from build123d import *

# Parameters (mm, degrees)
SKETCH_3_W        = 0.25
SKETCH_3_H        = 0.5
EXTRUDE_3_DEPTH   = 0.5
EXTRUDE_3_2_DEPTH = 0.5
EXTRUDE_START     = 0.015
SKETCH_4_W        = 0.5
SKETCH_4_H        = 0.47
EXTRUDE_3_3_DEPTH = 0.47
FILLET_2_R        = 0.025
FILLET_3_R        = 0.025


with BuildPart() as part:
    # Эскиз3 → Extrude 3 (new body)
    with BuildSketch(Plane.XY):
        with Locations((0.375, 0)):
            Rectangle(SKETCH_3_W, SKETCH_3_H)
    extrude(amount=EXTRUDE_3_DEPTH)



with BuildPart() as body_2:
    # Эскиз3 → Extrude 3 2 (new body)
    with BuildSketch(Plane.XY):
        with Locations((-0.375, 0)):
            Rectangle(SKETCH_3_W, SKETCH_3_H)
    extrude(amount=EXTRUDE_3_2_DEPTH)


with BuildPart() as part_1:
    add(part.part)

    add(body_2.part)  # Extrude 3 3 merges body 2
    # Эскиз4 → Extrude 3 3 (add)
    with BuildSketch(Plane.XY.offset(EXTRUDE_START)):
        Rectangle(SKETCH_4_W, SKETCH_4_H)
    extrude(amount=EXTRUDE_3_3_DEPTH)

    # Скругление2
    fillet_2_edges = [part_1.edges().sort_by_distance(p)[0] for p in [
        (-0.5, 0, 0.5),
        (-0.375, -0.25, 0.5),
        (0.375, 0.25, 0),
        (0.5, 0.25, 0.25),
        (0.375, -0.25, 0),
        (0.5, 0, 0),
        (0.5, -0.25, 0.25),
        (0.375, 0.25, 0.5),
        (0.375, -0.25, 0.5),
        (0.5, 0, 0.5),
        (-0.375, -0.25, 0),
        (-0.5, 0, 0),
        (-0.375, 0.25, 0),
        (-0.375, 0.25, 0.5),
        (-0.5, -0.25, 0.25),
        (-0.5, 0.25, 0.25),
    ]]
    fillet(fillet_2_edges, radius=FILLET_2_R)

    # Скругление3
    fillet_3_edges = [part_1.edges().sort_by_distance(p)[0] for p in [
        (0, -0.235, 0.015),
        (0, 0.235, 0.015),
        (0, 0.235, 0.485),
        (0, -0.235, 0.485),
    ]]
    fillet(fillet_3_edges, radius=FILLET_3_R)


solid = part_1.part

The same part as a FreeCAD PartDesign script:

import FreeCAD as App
import Part
import Sketcher
from FreeCAD import Vector


def edges_at(feature, points):
    """Names of the edges that pass closest to the given points."""
    edges = feature.Shape.Edges
    near = lambda p: min(range(len(edges)), key=lambda i: edges[i].distToShape(Part.Vertex(*p))[0])
    return sorted({f"Edge{near(p) + 1}" for p in points})

doc = App.newDocument("Part")
body = doc.addObject("PartDesign::Body", "Body")

sketch1 = body.newObject("Sketcher::SketchObject", "Sketch")
sketch1.AttachmentSupport = (doc.getObject("XY_Plane"), [""])
sketch1.MapMode = "FlatFace"
sketch1.addGeometry([
    Part.LineSegment(Vector(0.25, 0.25, 0), Vector(0.25, -0.25, 0)),
    Part.LineSegment(Vector(0.25, -0.25, 0), Vector(0.5, -0.25, 0)),
    Part.LineSegment(Vector(0.5, -0.25, 0), Vector(0.5, 0.25, 0)),
    Part.LineSegment(Vector(0.5, 0.25, 0), Vector(0.25, 0.25, 0)),
], False)
sketch1.addConstraint([
    Sketcher.Constraint("Coincident", 0, 2, 1, 1),
    Sketcher.Constraint("Coincident", 1, 2, 2, 1),
    Sketcher.Constraint("Coincident", 2, 2, 3, 1),
    Sketcher.Constraint("Coincident", 3, 2, 0, 1),
    Sketcher.Constraint("Vertical", 0),
    Sketcher.Constraint("Horizontal", 1),
    Sketcher.Constraint("Vertical", 2),
    Sketcher.Constraint("Horizontal", 3),
    Sketcher.Constraint("DistanceY", 0, 2, 0, 1, 0.5),
    Sketcher.Constraint("DistanceX", 1, 1, 1, 2, 0.25),
    Sketcher.Constraint("DistanceX", -1, 1, 1, 2, 0.5),
    Sketcher.Constraint("DistanceY", 0, 2, -1, 1, 0.25),
])
pad1 = body.newObject("PartDesign::Pad", "Pad")
pad1.Profile = sketch1
pad1.Length = 0.5
body2 = doc.addObject("PartDesign::Body", "Body001")

sketch2 = body2.newObject("Sketcher::SketchObject", "Sketch001")
sketch2.AttachmentSupport = (doc.getObject("XY_Plane001"), [""])
sketch2.MapMode = "FlatFace"
sketch2.addGeometry([
    Part.LineSegment(Vector(-0.5, 0.25, 0), Vector(-0.5, -0.25, 0)),
    Part.LineSegment(Vector(-0.5, -0.25, 0), Vector(-0.25, -0.25, 0)),
    Part.LineSegment(Vector(-0.25, -0.25, 0), Vector(-0.25, 0.25, 0)),
    Part.LineSegment(Vector(-0.25, 0.25, 0), Vector(-0.5, 0.25, 0)),
], False)
sketch2.addConstraint([
    Sketcher.Constraint("Coincident", 0, 2, 1, 1),
    Sketcher.Constraint("Coincident", 1, 2, 2, 1),
    Sketcher.Constraint("Coincident", 2, 2, 3, 1),
    Sketcher.Constraint("Coincident", 3, 2, 0, 1),
    Sketcher.Constraint("Vertical", 0),
    Sketcher.Constraint("Horizontal", 1),
    Sketcher.Constraint("Vertical", 2),
    Sketcher.Constraint("Horizontal", 3),
    Sketcher.Constraint("DistanceY", 0, 2, 0, 1, 0.5),
    Sketcher.Constraint("DistanceX", 1, 1, 1, 2, 0.25),
    Sketcher.Constraint("DistanceX", 0, 2, -1, 1, 0.5),
    Sketcher.Constraint("DistanceY", 0, 2, -1, 1, 0.25),
])
pad2 = body2.newObject("PartDesign::Pad", "Pad001")
pad2.Profile = sketch2
pad2.Length = 0.5
body.AllowCompound = True
doc.recompute()

boolean = body.newObject("PartDesign::Boolean", "Boolean")
boolean.Type = "Fuse"
boolean.addObjects([body2])

sketch3 = body.newObject("Sketcher::SketchObject", "Sketch002")
sketch3.AttachmentSupport = (doc.getObject("XY_Plane"), [""])
sketch3.MapMode = "FlatFace"
sketch3.AttachmentOffset = App.Placement(Vector(0, 0, 0.015), App.Rotation())
sketch3.addGeometry([
    Part.LineSegment(Vector(-0.25, 0.23, 0), Vector(-0.25, -0.23, 0)),
    Part.LineSegment(Vector(-0.25, -0.23, 0), Vector(0.25, -0.23, 0)),
    Part.LineSegment(Vector(0.25, -0.23, 0), Vector(0.25, 0.23, 0)),
    Part.LineSegment(Vector(0.25, 0.23, 0), Vector(-0.25, 0.23, 0)),
], False)
sketch3.addConstraint([
    Sketcher.Constraint("Coincident", 0, 2, 1, 1),
    Sketcher.Constraint("Coincident", 1, 2, 2, 1),
    Sketcher.Constraint("Coincident", 2, 2, 3, 1),
    Sketcher.Constraint("Coincident", 3, 2, 0, 1),
    Sketcher.Constraint("Vertical", 0),
    Sketcher.Constraint("Horizontal", 1),
    Sketcher.Constraint("Vertical", 2),
    Sketcher.Constraint("Horizontal", 3),
    Sketcher.Constraint("Symmetric", 0, 2, 2, 2, -1, 1),
    Sketcher.Constraint("DistanceX", 1, 1, 1, 2, 0.5),
    Sketcher.Constraint("DistanceY", 0, 2, 0, 1, 0.47),
])
pad3 = body.newObject("PartDesign::Pad", "Pad002")
pad3.Profile = sketch3
pad3.Length = 0.47
doc.recompute()

fillet = body.newObject("PartDesign::Fillet", "Fillet")
fillet.Base = (pad3, edges_at(pad3, [
    (-0.5, 0, 0.5),
    (-0.375, -0.25, 0.5),
    (0.375, 0.25, 0),
    (0.5, 0.25, 0.25),
    (0.375, -0.25, 0),
    (0.5, 0, 0),
    (0.5, -0.25, 0.25),
    (0.375, 0.25, 0.5),
    (0.375, -0.25, 0.5),
    (0.5, 0, 0.5),
    (-0.375, -0.25, 0),
    (-0.5, 0, 0),
    (-0.375, 0.25, 0),
    (-0.375, 0.25, 0.5),
    (-0.5, -0.25, 0.25),
    (-0.5, 0.25, 0.25),
]))
fillet.Radius = 0.025
doc.recompute()

fillet2 = body.newObject("PartDesign::Fillet", "Fillet001")
fillet2.Base = (fillet, edges_at(fillet, [
    (0, -0.235, 0.015),
    (0, 0.235, 0.015),
    (0, 0.235, 0.485),
    (0, -0.235, 0.485),
]))
fillet2.Radius = 0.025

doc.recompute()
